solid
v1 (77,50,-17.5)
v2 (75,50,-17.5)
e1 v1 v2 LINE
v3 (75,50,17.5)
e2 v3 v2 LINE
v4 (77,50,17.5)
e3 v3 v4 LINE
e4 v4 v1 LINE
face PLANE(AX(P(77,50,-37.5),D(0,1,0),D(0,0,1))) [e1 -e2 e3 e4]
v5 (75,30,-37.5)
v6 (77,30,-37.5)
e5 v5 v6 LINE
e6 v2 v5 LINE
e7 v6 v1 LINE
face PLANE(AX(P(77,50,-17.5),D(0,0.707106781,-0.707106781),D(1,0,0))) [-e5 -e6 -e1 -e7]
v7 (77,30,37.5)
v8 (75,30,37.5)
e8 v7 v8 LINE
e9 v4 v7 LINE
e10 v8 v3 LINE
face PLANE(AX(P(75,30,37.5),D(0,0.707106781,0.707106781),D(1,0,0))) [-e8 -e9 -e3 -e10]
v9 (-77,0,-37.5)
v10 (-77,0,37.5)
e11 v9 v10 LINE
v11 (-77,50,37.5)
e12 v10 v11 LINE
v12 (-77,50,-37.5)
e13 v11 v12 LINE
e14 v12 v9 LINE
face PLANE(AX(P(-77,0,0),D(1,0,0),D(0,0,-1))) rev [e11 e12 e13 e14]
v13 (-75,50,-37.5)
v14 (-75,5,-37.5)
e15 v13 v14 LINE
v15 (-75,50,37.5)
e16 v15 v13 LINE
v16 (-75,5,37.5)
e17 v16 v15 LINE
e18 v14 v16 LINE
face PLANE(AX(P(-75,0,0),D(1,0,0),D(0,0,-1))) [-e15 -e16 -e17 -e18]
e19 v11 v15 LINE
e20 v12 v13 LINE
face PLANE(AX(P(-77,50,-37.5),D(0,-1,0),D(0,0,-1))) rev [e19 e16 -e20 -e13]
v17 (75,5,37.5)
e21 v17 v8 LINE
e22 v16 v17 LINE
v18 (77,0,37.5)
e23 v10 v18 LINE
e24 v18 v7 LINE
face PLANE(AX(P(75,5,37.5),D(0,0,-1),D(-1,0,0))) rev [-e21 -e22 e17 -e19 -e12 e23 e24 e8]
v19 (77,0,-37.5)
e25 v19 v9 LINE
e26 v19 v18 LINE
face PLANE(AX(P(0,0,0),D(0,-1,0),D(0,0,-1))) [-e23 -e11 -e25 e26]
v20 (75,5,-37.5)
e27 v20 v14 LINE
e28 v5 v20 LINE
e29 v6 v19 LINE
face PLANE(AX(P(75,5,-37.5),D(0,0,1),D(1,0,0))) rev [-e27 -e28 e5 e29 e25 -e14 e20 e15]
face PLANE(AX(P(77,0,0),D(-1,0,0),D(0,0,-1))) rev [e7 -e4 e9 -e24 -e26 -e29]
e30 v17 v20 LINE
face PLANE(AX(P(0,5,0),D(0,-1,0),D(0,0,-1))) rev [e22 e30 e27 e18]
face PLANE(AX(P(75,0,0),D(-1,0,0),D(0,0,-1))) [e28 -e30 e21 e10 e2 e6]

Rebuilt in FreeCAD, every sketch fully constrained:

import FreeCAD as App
import Part
import Sketcher
from FreeCAD import Vector
Q = App.Units.Quantity


def edges_at(feature, points):
    """Names of the edges that pass closest to the given points."""
    edges = feature.Shape.Edges
    near = lambda p: min(range(len(edges)), key=lambda i: edges[i].distToShape(Part.Vertex(*p))[0])
    return sorted({f"Edge{near(p) + 1}" for p in points})

doc = App.newDocument("Part")
body = doc.addObject("PartDesign::Body", "Body")

sketch1 = body.newObject("Sketcher::SketchObject", "Sketch")
sketch1.AttachmentSupport = (doc.getObject("XZ_Plane"), [""])
sketch1.MapMode = "FlatFace"
sketch1.addGeometry([
    Part.LineSegment(Vector(-75, -37.5, 0), Vector(-75, 37.5, 0)),
    Part.LineSegment(Vector(-75, 37.5, 0), Vector(75, 37.5, 0)),
    Part.LineSegment(Vector(75, 37.5, 0), Vector(75, -37.5, 0)),
    Part.LineSegment(Vector(75, -37.5, 0), Vector(-75, -37.5, 0)),
], False)
sketch1.addConstraint([
    Sketcher.Constraint("Coincident", 0, 2, 1, 1),
    Sketcher.Constraint("Coincident", 1, 2, 2, 1),
    Sketcher.Constraint("Coincident", 2, 2, 3, 1),
    Sketcher.Constraint("Coincident", 3, 2, 0, 1),
    Sketcher.Constraint("Vertical", 0),
    Sketcher.Constraint("Horizontal", 1),
    Sketcher.Constraint("Vertical", 2),
    Sketcher.Constraint("Horizontal", 3),
    Sketcher.Constraint("Symmetric", 0, 2, 2, 2, -1, 1),
    Sketcher.Constraint("DistanceX", 1, 1, 1, 2, Q("150 mm")),
    Sketcher.Constraint("DistanceY", 0, 1, 0, 2, Q("75 mm")),
])
pad1 = body.newObject("PartDesign::Pad", "Pad")
pad1.Profile = sketch1
pad1.Length = 5
pad1.Reversed = True

sketch2 = body.newObject("Sketcher::SketchObject", "Sketch001")
sketch2.AttachmentSupport = (doc.getObject("YZ_Plane"), [""])
sketch2.MapMode = "FlatFace"
sketch2.AttachmentOffset = App.Placement(Vector(0, 0, -75), App.Rotation())
sketch2.addGeometry([
    Part.LineSegment(Vector(50, -37.5, 0), Vector(0, -37.5, 0)),
    Part.LineSegment(Vector(0, -37.5, 0), Vector(0, 37.5, 0)),
    Part.LineSegment(Vector(0, 37.5, 0), Vector(50, 37.5, 0)),
    Part.LineSegment(Vector(50, 37.5, 0), Vector(50, -37.5, 0)),
], False)
sketch2.addConstraint([
    Sketcher.Constraint("Coincident", 0, 2, 1, 1),
    Sketcher.Constraint("Coincident", 1, 2, 2, 1),
    Sketcher.Constraint("Coincident", 2, 2, 3, 1),
    Sketcher.Constraint("Coincident", 3, 2, 0, 1),
    Sketcher.Constraint("Horizontal", 0),
    Sketcher.Constraint("Vertical", 1),
    Sketcher.Constraint("Horizontal", 2),
    Sketcher.Constraint("Vertical", 3),
    Sketcher.Constraint("Symmetric", 0, 2, 1, 2, -1, 1),
    Sketcher.Constraint("DistanceX", 0, 2, 0, 1, Q("50 mm")),
    Sketcher.Constraint("DistanceY", 1, 1, 1, 2, Q("75 mm")),
])
pad2 = body.newObject("PartDesign::Pad", "Pad001")
pad2.Profile = sketch2
pad2.Length = 2
pad2.Reversed = True
doc.recompute()

mirrored = body.newObject("PartDesign::Mirrored", "Mirrored")
mirrored.Originals = [pad2]
mirrored.MirrorPlane = (doc.getObject("YZ_Plane"), [""])
body.Tip = mirrored
doc.recompute()

chamfer = body.newObject("PartDesign::Chamfer", "Chamfer")
chamfer.Base = (mirrored, edges_at(mirrored, [(76, 50, -37.5), (76, 50, 37.5)]))
chamfer.Size = 20

doc.recompute()
